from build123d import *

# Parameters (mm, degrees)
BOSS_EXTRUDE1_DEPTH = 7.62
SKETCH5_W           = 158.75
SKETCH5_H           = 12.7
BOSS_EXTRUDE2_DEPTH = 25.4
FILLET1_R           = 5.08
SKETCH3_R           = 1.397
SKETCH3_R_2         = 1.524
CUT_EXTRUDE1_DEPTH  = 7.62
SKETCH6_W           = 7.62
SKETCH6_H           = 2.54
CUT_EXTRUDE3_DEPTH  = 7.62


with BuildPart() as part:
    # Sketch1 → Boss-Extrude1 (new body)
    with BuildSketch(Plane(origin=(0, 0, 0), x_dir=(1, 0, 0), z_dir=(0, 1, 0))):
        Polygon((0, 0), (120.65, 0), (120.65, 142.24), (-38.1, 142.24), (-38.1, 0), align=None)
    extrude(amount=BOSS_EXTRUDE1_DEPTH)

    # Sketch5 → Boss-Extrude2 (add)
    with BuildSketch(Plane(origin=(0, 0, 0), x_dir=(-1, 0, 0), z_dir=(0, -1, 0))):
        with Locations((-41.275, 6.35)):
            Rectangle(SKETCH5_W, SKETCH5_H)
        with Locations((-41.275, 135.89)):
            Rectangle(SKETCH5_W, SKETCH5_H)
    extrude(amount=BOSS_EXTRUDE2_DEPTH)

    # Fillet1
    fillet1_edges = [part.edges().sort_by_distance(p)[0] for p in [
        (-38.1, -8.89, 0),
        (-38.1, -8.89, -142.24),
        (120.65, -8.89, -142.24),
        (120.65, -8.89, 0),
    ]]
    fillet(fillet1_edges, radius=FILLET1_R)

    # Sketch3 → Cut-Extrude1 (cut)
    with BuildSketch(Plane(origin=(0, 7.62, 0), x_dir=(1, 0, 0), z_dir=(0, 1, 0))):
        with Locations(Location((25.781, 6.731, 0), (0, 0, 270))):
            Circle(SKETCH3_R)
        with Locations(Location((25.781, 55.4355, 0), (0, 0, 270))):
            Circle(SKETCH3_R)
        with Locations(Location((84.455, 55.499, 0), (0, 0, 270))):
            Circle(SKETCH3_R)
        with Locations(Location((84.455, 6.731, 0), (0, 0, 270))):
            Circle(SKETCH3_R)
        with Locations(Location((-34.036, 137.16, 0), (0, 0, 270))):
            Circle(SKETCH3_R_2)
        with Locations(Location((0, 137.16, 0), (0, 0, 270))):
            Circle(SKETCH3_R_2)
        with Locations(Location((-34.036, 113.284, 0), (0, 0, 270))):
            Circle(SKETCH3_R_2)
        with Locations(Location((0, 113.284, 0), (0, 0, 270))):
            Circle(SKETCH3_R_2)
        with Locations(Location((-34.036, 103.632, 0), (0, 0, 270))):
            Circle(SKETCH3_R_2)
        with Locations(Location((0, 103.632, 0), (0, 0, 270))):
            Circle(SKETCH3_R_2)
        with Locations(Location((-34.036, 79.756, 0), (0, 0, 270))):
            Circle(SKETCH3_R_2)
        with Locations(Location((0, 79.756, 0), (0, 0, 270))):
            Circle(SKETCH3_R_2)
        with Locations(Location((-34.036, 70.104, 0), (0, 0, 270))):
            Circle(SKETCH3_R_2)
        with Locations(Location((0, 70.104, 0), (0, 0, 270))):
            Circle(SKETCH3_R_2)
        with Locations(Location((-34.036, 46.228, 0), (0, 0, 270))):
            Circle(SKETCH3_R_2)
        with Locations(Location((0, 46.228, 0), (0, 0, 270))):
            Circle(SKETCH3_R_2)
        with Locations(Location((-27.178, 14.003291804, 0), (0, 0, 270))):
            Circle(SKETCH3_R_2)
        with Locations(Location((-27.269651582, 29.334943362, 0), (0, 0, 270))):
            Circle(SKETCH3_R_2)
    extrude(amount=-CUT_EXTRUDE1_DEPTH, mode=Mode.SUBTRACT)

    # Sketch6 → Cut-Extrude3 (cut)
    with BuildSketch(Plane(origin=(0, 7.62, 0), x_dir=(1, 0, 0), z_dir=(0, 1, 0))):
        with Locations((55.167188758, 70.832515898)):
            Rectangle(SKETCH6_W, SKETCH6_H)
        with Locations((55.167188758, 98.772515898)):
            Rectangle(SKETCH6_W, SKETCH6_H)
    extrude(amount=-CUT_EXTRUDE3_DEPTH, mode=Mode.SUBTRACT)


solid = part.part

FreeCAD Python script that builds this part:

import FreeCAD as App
import Part
import Sketcher

V = App.Vector
Q = App.Units.Quantity


def edges_at(feature, points):
    """Names of the edges that pass closest to the given points."""
    edges = feature.Shape.Edges
    near = lambda p: min(range(len(edges)), key=lambda i: edges[i].distToShape(Part.Vertex(*p))[0])
    return sorted({f"Edge{near(p) + 1}" for p in points})

doc = App.newDocument("Part")
body = doc.addObject("PartDesign::Body", "Body")

# Sketch on XZ plane
sketch1 = doc.addObject("Sketcher::SketchObject", "Sketch")
body.addObject(sketch1)
sketch1.AttachmentSupport = (doc.XZ_Plane, [""])
sketch1.MapMode = "FlatFace"
sketch1.addGeometry(Part.LineSegment(V(121, 0, 0), V(121, -142, 0)), False)
sketch1.addGeometry(Part.LineSegment(V(121, -142, 0), V(-38, -142, 0)), False)
sketch1.addGeometry(Part.LineSegment(V(-38, -142, 0), V(-38, 0, 0)), False)
sketch1.addGeometry(Part.LineSegment(V(-38, 0, 0), V(121, 0, 0)), False)
sketch1.addConstraint(Sketcher.Constraint("Coincident", 0, 2, 1, 1))
sketch1.addConstraint(Sketcher.Constraint("Coincident", 1, 2, 2, 1))
sketch1.addConstraint(Sketcher.Constraint("Coincident", 2, 2, 3, 1))
sketch1.addConstraint(Sketcher.Constraint("Coincident", 3, 2, 0, 1))
sketch1.addConstraint(Sketcher.Constraint("Vertical", 0))
sketch1.addConstraint(Sketcher.Constraint("Horizontal", 1))
sketch1.addConstraint(Sketcher.Constraint("Vertical", 2))
sketch1.addConstraint(Sketcher.Constraint("Horizontal", 3))
sketch1.addConstraint(Sketcher.Constraint("PointOnObject", 2, 2, -1))
sketch1.addConstraint(Sketcher.Constraint("DistanceY", 0, 2, 0, 1, Q("5.6 in")))
sketch1.addConstraint(Sketcher.Constraint("DistanceX", 1, 2, 1, 1, Q("6.25 in")))
sketch1.addConstraint(Sketcher.Constraint("DistanceX", 1, 2, -1, 1, Q("1.5 in")))
pad1 = doc.addObject("PartDesign::Pad", "Pad")
body.addObject(pad1)
pad1.Profile = sketch1
pad1.Length = Q("0.3 in")
pad1.Reversed = True

# Sketch on XZ plane
sketch2 = doc.addObject("Sketcher::SketchObject", "Sketch001")
body.addObject(sketch2)
sketch2.AttachmentSupport = (doc.XZ_Plane, [""])
sketch2.MapMode = "FlatFace"
sketch2.addGeometry(Part.LineSegment(V(121, -13, 0), V(121, 0, 0)), False)
sketch2.addGeometry(Part.LineSegment(V(121, 0, 0), V(-38, 0, 0)), False)
sketch2.addGeometry(Part.LineSegment(V(-38, 0, 0), V(-38, -13, 0)), False)
sketch2.addGeometry(Part.LineSegment(V(-38, -13, 0), V(121, -13, 0)), False)
sketch2.addGeometry(Part.LineSegment(V(121, -142, 0), V(121, -130, 0)), False)
sketch2.addGeometry(Part.LineSegment(V(121, -130, 0), V(-38, -130, 0)), False)
sketch2.addGeometry(Part.LineSegment(V(-38, -130, 0), V(-38, -142, 0)), False)
sketch2.addGeometry(Part.LineSegment(V(-38, -142, 0), V(121, -142, 0)), False)
sketch2.addConstraint(Sketcher.Constraint("Coincident", 0, 2, 1, 1))
sketch2.addConstraint(Sketcher.Constraint("Coincident", 1, 2, 2, 1))
sketch2.addConstraint(Sketcher.Constraint("Coincident", 2, 2, 3, 1))
sketch2.addConstraint(Sketcher.Constraint("Coincident", 3, 2, 0, 1))
sketch2.addConstraint(Sketcher.Constraint("Coincident", 4, 2, 5, 1))
sketch2.addConstraint(Sketcher.Constraint("Coincident", 5, 2, 6, 1))
sketch2.addConstraint(Sketcher.Constraint("Coincident", 6, 2, 7, 1))
sketch2.addConstraint(Sketcher.Constraint("Coincident", 7, 2, 4, 1))
sketch2.addConstraint(Sketcher.Constraint("Vertical", 0))
sketch2.addConstraint(Sketcher.Constraint("Horizontal", 1))
sketch2.addConstraint(Sketcher.Constraint("Vertical", 2))
sketch2.addConstraint(Sketcher.Constraint("Horizontal", 3))
sketch2.addConstraint(Sketcher.Constraint("Vertical", 4))
sketch2.addConstraint(Sketcher.Constraint("Horizontal", 5))
sketch2.addConstraint(Sketcher.Constraint("Vertical", 6))
sketch2.addConstraint(Sketcher.Constraint("Horizontal", 7))
sketch2.addConstraint(Sketcher.Constraint("PointOnObject", 0, 2, -1))
sketch2.addConstraint(Sketcher.Constraint("Vertical", 3, 2, 4, 2))
sketch2.addConstraint(Sketcher.Constraint("Vertical", 2, 2, 5, 2))
sketch2.addConstraint(Sketcher.Constraint("Equal", 2, 4))
sketch2.addConstraint(Sketcher.Constraint("DistanceY", 0, 1, 0, 2, Q("0.5 in")))
sketch2.addConstraint(Sketcher.Constraint("DistanceX", 1, 2, 1, 1, Q("6.25 in")))
sketch2.addConstraint(Sketcher.Constraint("DistanceX", 1, 2, -1, 1, Q("1.5 in")))
sketch2.addConstraint(Sketcher.Constraint("DistanceY", 4, 2, -1, 1, Q("5.1 in")))
pad2 = doc.addObject("PartDesign::Pad", "Pad001")
body.addObject(pad2)
pad2.Profile = sketch2
pad2.Length = Q("1 in")
doc.recompute()

fillet = doc.addObject("PartDesign::Fillet", "Fillet")
body.addObject(fillet)
fillet.Base = (pad2, edges_at(pad2, [
    (-38.1, -8.89, 0),
    (-38.1, -8.89, -142.24),
    (120.65, -8.89, -142.24),
    (120.65, -8.89, 0),
]))
fillet.Radius = Q("0.2 in")

# Sketch on XZ plane
sketch3 = doc.addObject("Sketcher::SketchObject", "Sketch002")
body.addObject(sketch3)
sketch3.AttachmentSupport = (doc.XZ_Plane, [""])
sketch3.MapMode = "FlatFace"
sketch3.AttachmentOffset = App.Placement(V(0, 0, -0.3 * 25.4), App.Rotation())
sketch3.addGeometry(Part.Circle(V(25.8, -6.7, 0), V(0, 0, 1), 1.4), False)
sketch3.addGeometry(Part.Circle(V(25.8, -55.4, 0), V(0, 0, 1), 1.4), False)
sketch3.addGeometry(Part.Circle(V(84.5, -55.5, 0), V(0, 0, 1), 1.4), False)
sketch3.addGeometry(Part.Circle(V(84.5, -6.7, 0), V(0, 0, 1), 1.4), False)
sketch3.addGeometry(Part.Circle(V(-34, -137.2, 0), V(0, 0, 1), 1.5), False)
sketch3.addGeometry(Part.Circle(V(0, -137.2, 0), V(0, 0, 1), 1.5), False)
sketch3.addGeometry(Part.Circle(V(-34, -113.3, 0), V(0, 0, 1), 1.5), False)
sketch3.addGeometry(Part.Circle(V(0, -113.3, 0), V(0, 0, 1), 1.5), False)
sketch3.addGeometry(Part.Circle(V(-34, -103.6, 0), V(0, 0, 1), 1.5), False)
sketch3.addGeometry(Part.Circle(V(0, -103.6, 0), V(0, 0, 1), 1.5), False)
sketch3.addGeometry(Part.Circle(V(-34, -79.8, 0), V(0, 0, 1), 1.5), False)
sketch3.addGeometry(Part.Circle(V(0, -79.8, 0), V(0, 0, 1), 1.5), False)
sketch3.addGeometry(Part.Circle(V(-34, -70.1, 0), V(0, 0, 1), 1.5), False)
sketch3.addGeometry(Part.Circle(V(0, -70.1, 0), V(0, 0, 1), 1.5), False)
sketch3.addGeometry(Part.Circle(V(-34, -46.2, 0), V(0, 0, 1), 1.5), False)
sketch3.addGeometry(Part.Circle(V(0, -46.2, 0), V(0, 0, 1), 1.5), False)
sketch3.addGeometry(Part.Circle(V(-27.2, -14, 0), V(0, 0, 1), 1.5), False)
sketch3.addGeometry(Part.Circle(V(-27.3, -29.3, 0), V(0, 0, 1), 1.5), False)
sketch3.addConstraint(Sketcher.Constraint("Equal", 0, 1))
sketch3.addConstraint(Sketcher.Constraint("Equal", 1, 2))
sketch3.addConstraint(Sketcher.Constraint("Equal", 2, 3))
sketch3.addConstraint(Sketcher.Constraint("Equal", 4, 5))
sketch3.addConstraint(Sketcher.Constraint("Equal", 5, 6))
sketch3.addConstraint(Sketcher.Constraint("Equal", 6, 7))
sketch3.addConstraint(Sketcher.Constraint("Equal", 7, 8))
sketch3.addConstraint(Sketcher.Constraint("Equal", 8, 9))
sketch3.addConstraint(Sketcher.Constraint("Equal", 9, 10))
sketch3.addConstraint(Sketcher.Constraint("Equal", 10, 11))
sketch3.addConstraint(Sketcher.Constraint("Equal", 11, 12))
sketch3.addConstraint(Sketcher.Constraint("Equal", 12, 13))
sketch3.addConstraint(Sketcher.Constraint("Equal", 13, 14))
sketch3.addConstraint(Sketcher.Constraint("Equal", 14, 15))
sketch3.addConstraint(Sketcher.Constraint("Equal", 15, 16))
sketch3.addConstraint(Sketcher.Constraint("Equal", 16, 17))
sketch3.addConstraint(Sketcher.Constraint("PointOnObject", 5, 3, -2))
sketch3.addConstraint(Sketcher.Constraint("PointOnObject", 7, 3, -2))
sketch3.addConstraint(Sketcher.Constraint("PointOnObject", 9, 3, -2))
sketch3.addConstraint(Sketcher.Constraint("PointOnObject", 11, 3, -2))
sketch3.addConstraint(Sketcher.Constraint("PointOnObject", 13, 3, -2))
sketch3.addConstraint(Sketcher.Constraint("PointOnObject", 15, 3, -2))
sketch3.addConstraint(Sketcher.Constraint("Horizontal", 0, 3, 3, 3))
sketch3.addConstraint(Sketcher.Constraint("Horizontal", 4, 3, 5, 3))
sketch3.addConstraint(Sketcher.Constraint("Horizontal", 6, 3, 7, 3))
sketch3.addConstraint(Sketcher.Constraint("Horizontal", 8, 3, 9, 3))
sketch3.addConstraint(Sketcher.Constraint("Horizontal", 10, 3, 11, 3))
sketch3.addConstraint(Sketcher.Constraint("Horizontal", 12, 3, 13, 3))
sketch3.addConstraint(Sketcher.Constraint("Horizontal", 14, 3, 15, 3))
sketch3.addConstraint(Sketcher.Constraint("Vertical", 0, 3, 1, 3))
sketch3.addConstraint(Sketcher.Constraint("Vertical", 2, 3, 3, 3))
sketch3.addConstraint(Sketcher.Constraint("Vertical", 4, 3, 6, 3))
sketch3.addConstraint(Sketcher.Constraint("Vertical", 6, 3, 8, 3))
sketch3.addConstraint(Sketcher.Constraint("Vertical", 8, 3, 10, 3))
sketch3.addConstraint(Sketcher.Constraint("Vertical", 10, 3, 12, 3))
sketch3.addConstraint(Sketcher.Constraint("Vertical", 12, 3, 14, 3))
sketch3.addConstraint(Sketcher.Constraint("Diameter", 0, Q("0.11 in")))
sketch3.addConstraint(Sketcher.Constraint("Diameter", 4, Q("0.12 in")))
sketch3.addConstraint(Sketcher.Constraint("DistanceY", 4, 3, -1, 1, Q("5.4 in")))
sketch3.addConstraint(Sketcher.Constraint("DistanceY", 6, 3, 12, 3, Q("1.7 in")))
sketch3.addConstraint(Sketcher.Constraint("DistanceX", 4, 3, -1, 1, Q("1.34 in")))
sketch3.addConstraint(Sketcher.Constraint("DistanceY", 6, 3, -1, 1, Q("4.46 in")))
sketch3.addConstraint(Sketcher.Constraint("DistanceY", 8, 3, -1, 1, Q("4.08 in")))
sketch3.addConstraint(Sketcher.Constraint("DistanceY", 10, 3, -1, 1, Q("3.14 in")))
sketch3.addConstraint(Sketcher.Constraint("DistanceY", 14, 3, -1, 1, Q("1.82 in")))
sketch3.addConstraint(Sketcher.Constraint("DistanceX", 16, 3, -1, 1, Q("1.07 in")))
sketch3.addConstraint(Sketcher.Constraint("DistanceX", 1, 3, 2, 3, Q("2.31 in")))
sketch3.addConstraint(Sketcher.Constraint("DistanceY", 2, 3, 0, 3, Q("1.92 in")))
sketch3.addConstraint(Sketcher.Constraint("DistanceX", -1, 1, 0, 3, Q("1.015 in")))
sketch3.addConstraint(Sketcher.Constraint("DistanceY", 0, 3, -1, 1, Q("0.265 in")))
sketch3.addConstraint(Sketcher.Constraint("DistanceY", 1, 3, -1, 1, Q("2.1825 in")))
sketch3.addConstraint(Sketcher.Constraint("DistanceY", 16, 3, -1, 1, 14.003292))
sketch3.addConstraint(Sketcher.Constraint("DistanceX", 17, 3, -1, 1, 27.269652))
sketch3.addConstraint(Sketcher.Constraint("DistanceY", 17, 3, 16, 3, 15.331652))
pocket1 = doc.addObject("PartDesign::Pocket", "Pocket")
body.addObject(pocket1)
pocket1.Profile = sketch3
pocket1.Length = Q("0.3 in")
pocket1.Reversed = True

# Sketch on XZ plane
sketch4 = doc.addObject("Sketcher::SketchObject", "Sketch003")
body.addObject(sketch4)
sketch4.AttachmentSupport = (doc.XZ_Plane, [""])
sketch4.MapMode = "FlatFace"
sketch4.AttachmentOffset = App.Placement(V(0, 0, -0.3 * 25.4), App.Rotation())
sketch4.addGeometry(Part.LineSegment(V(51.4, -72.1, 0), V(51.4, -69.6, 0)), False)
sketch4.addGeometry(Part.LineSegment(V(51.4, -69.6, 0), V(59, -69.6, 0)), False)
sketch4.addGeometry(Part.LineSegment(V(59, -69.6, 0), V(59, -72.1, 0)), False)
sketch4.addGeometry(Part.LineSegment(V(59, -72.1, 0), V(51.4, -72.1, 0)), False)
sketch4.addGeometry(Part.LineSegment(V(51.4, -100, 0), V(51.4, -97.5, 0)), False)
sketch4.addGeometry(Part.LineSegment(V(51.4, -97.5, 0), V(59, -97.5, 0)), False)
sketch4.addGeometry(Part.LineSegment(V(59, -97.5, 0), V(59, -100, 0)), False)
sketch4.addGeometry(Part.LineSegment(V(59, -100, 0), V(51.4, -100, 0)), False)
sketch4.addConstraint(Sketcher.Constraint("Coincident", 0, 2, 1, 1))
sketch4.addConstraint(Sketcher.Constraint("Coincident", 1, 2, 2, 1))
sketch4.addConstraint(Sketcher.Constraint("Coincident", 2, 2, 3, 1))
sketch4.addConstraint(Sketcher.Constraint("Coincident", 3, 2, 0, 1))
sketch4.addConstraint(Sketcher.Constraint("Coincident", 4, 2, 5, 1))
sketch4.addConstraint(Sketcher.Constraint("Coincident", 5, 2, 6, 1))
sketch4.addConstraint(Sketcher.Constraint("Coincident", 6, 2, 7, 1))
sketch4.addConstraint(Sketcher.Constraint("Coincident", 7, 2, 4, 1))
sketch4.addConstraint(Sketcher.Constraint("Vertical", 0))
sketch4.addConstraint(Sketcher.Constraint("Horizontal", 1))
sketch4.addConstraint(Sketcher.Constraint("Vertical", 2))
sketch4.addConstraint(Sketcher.Constraint("Horizontal", 3))
sketch4.addConstraint(Sketcher.Constraint("Vertical", 4))
sketch4.addConstraint(Sketcher.Constraint("Horizontal", 5))
sketch4.addConstraint(Sketcher.Constraint("Vertical", 6))
sketch4.addConstraint(Sketcher.Constraint("Horizontal", 7))
sketch4.addConstraint(Sketcher.Constraint("Vertical", 3, 2, 4, 2))
sketch4.addConstraint(Sketcher.Constraint("Vertical", 2, 2, 5, 2))
sketch4.addConstraint(Sketcher.Constraint("Equal", 2, 4))
sketch4.addConstraint(Sketcher.Constraint("DistanceX", 1, 1, 1, 2, Q("0.3 in")))
sketch4.addConstraint(Sketcher.Constraint("DistanceY", 0, 1, 0, 2, Q("0.1 in")))
sketch4.addConstraint(Sketcher.Constraint("DistanceY", 4, 2, 3, 2, Q("1 in")))
sketch4.addConstraint(Sketcher.Constraint("DistanceX", -1, 1, 0, 2, 51.357189))
sketch4.addConstraint(Sketcher.Constraint("DistanceY", 0, 2, -1, 1, 69.562516))
pocket2 = doc.addObject("PartDesign::Pocket", "Pocket001")
body.addObject(pocket2)
pocket2.Profile = sketch4
pocket2.Length = Q("0.3 in")
pocket2.Reversed = True

doc.recompute()
